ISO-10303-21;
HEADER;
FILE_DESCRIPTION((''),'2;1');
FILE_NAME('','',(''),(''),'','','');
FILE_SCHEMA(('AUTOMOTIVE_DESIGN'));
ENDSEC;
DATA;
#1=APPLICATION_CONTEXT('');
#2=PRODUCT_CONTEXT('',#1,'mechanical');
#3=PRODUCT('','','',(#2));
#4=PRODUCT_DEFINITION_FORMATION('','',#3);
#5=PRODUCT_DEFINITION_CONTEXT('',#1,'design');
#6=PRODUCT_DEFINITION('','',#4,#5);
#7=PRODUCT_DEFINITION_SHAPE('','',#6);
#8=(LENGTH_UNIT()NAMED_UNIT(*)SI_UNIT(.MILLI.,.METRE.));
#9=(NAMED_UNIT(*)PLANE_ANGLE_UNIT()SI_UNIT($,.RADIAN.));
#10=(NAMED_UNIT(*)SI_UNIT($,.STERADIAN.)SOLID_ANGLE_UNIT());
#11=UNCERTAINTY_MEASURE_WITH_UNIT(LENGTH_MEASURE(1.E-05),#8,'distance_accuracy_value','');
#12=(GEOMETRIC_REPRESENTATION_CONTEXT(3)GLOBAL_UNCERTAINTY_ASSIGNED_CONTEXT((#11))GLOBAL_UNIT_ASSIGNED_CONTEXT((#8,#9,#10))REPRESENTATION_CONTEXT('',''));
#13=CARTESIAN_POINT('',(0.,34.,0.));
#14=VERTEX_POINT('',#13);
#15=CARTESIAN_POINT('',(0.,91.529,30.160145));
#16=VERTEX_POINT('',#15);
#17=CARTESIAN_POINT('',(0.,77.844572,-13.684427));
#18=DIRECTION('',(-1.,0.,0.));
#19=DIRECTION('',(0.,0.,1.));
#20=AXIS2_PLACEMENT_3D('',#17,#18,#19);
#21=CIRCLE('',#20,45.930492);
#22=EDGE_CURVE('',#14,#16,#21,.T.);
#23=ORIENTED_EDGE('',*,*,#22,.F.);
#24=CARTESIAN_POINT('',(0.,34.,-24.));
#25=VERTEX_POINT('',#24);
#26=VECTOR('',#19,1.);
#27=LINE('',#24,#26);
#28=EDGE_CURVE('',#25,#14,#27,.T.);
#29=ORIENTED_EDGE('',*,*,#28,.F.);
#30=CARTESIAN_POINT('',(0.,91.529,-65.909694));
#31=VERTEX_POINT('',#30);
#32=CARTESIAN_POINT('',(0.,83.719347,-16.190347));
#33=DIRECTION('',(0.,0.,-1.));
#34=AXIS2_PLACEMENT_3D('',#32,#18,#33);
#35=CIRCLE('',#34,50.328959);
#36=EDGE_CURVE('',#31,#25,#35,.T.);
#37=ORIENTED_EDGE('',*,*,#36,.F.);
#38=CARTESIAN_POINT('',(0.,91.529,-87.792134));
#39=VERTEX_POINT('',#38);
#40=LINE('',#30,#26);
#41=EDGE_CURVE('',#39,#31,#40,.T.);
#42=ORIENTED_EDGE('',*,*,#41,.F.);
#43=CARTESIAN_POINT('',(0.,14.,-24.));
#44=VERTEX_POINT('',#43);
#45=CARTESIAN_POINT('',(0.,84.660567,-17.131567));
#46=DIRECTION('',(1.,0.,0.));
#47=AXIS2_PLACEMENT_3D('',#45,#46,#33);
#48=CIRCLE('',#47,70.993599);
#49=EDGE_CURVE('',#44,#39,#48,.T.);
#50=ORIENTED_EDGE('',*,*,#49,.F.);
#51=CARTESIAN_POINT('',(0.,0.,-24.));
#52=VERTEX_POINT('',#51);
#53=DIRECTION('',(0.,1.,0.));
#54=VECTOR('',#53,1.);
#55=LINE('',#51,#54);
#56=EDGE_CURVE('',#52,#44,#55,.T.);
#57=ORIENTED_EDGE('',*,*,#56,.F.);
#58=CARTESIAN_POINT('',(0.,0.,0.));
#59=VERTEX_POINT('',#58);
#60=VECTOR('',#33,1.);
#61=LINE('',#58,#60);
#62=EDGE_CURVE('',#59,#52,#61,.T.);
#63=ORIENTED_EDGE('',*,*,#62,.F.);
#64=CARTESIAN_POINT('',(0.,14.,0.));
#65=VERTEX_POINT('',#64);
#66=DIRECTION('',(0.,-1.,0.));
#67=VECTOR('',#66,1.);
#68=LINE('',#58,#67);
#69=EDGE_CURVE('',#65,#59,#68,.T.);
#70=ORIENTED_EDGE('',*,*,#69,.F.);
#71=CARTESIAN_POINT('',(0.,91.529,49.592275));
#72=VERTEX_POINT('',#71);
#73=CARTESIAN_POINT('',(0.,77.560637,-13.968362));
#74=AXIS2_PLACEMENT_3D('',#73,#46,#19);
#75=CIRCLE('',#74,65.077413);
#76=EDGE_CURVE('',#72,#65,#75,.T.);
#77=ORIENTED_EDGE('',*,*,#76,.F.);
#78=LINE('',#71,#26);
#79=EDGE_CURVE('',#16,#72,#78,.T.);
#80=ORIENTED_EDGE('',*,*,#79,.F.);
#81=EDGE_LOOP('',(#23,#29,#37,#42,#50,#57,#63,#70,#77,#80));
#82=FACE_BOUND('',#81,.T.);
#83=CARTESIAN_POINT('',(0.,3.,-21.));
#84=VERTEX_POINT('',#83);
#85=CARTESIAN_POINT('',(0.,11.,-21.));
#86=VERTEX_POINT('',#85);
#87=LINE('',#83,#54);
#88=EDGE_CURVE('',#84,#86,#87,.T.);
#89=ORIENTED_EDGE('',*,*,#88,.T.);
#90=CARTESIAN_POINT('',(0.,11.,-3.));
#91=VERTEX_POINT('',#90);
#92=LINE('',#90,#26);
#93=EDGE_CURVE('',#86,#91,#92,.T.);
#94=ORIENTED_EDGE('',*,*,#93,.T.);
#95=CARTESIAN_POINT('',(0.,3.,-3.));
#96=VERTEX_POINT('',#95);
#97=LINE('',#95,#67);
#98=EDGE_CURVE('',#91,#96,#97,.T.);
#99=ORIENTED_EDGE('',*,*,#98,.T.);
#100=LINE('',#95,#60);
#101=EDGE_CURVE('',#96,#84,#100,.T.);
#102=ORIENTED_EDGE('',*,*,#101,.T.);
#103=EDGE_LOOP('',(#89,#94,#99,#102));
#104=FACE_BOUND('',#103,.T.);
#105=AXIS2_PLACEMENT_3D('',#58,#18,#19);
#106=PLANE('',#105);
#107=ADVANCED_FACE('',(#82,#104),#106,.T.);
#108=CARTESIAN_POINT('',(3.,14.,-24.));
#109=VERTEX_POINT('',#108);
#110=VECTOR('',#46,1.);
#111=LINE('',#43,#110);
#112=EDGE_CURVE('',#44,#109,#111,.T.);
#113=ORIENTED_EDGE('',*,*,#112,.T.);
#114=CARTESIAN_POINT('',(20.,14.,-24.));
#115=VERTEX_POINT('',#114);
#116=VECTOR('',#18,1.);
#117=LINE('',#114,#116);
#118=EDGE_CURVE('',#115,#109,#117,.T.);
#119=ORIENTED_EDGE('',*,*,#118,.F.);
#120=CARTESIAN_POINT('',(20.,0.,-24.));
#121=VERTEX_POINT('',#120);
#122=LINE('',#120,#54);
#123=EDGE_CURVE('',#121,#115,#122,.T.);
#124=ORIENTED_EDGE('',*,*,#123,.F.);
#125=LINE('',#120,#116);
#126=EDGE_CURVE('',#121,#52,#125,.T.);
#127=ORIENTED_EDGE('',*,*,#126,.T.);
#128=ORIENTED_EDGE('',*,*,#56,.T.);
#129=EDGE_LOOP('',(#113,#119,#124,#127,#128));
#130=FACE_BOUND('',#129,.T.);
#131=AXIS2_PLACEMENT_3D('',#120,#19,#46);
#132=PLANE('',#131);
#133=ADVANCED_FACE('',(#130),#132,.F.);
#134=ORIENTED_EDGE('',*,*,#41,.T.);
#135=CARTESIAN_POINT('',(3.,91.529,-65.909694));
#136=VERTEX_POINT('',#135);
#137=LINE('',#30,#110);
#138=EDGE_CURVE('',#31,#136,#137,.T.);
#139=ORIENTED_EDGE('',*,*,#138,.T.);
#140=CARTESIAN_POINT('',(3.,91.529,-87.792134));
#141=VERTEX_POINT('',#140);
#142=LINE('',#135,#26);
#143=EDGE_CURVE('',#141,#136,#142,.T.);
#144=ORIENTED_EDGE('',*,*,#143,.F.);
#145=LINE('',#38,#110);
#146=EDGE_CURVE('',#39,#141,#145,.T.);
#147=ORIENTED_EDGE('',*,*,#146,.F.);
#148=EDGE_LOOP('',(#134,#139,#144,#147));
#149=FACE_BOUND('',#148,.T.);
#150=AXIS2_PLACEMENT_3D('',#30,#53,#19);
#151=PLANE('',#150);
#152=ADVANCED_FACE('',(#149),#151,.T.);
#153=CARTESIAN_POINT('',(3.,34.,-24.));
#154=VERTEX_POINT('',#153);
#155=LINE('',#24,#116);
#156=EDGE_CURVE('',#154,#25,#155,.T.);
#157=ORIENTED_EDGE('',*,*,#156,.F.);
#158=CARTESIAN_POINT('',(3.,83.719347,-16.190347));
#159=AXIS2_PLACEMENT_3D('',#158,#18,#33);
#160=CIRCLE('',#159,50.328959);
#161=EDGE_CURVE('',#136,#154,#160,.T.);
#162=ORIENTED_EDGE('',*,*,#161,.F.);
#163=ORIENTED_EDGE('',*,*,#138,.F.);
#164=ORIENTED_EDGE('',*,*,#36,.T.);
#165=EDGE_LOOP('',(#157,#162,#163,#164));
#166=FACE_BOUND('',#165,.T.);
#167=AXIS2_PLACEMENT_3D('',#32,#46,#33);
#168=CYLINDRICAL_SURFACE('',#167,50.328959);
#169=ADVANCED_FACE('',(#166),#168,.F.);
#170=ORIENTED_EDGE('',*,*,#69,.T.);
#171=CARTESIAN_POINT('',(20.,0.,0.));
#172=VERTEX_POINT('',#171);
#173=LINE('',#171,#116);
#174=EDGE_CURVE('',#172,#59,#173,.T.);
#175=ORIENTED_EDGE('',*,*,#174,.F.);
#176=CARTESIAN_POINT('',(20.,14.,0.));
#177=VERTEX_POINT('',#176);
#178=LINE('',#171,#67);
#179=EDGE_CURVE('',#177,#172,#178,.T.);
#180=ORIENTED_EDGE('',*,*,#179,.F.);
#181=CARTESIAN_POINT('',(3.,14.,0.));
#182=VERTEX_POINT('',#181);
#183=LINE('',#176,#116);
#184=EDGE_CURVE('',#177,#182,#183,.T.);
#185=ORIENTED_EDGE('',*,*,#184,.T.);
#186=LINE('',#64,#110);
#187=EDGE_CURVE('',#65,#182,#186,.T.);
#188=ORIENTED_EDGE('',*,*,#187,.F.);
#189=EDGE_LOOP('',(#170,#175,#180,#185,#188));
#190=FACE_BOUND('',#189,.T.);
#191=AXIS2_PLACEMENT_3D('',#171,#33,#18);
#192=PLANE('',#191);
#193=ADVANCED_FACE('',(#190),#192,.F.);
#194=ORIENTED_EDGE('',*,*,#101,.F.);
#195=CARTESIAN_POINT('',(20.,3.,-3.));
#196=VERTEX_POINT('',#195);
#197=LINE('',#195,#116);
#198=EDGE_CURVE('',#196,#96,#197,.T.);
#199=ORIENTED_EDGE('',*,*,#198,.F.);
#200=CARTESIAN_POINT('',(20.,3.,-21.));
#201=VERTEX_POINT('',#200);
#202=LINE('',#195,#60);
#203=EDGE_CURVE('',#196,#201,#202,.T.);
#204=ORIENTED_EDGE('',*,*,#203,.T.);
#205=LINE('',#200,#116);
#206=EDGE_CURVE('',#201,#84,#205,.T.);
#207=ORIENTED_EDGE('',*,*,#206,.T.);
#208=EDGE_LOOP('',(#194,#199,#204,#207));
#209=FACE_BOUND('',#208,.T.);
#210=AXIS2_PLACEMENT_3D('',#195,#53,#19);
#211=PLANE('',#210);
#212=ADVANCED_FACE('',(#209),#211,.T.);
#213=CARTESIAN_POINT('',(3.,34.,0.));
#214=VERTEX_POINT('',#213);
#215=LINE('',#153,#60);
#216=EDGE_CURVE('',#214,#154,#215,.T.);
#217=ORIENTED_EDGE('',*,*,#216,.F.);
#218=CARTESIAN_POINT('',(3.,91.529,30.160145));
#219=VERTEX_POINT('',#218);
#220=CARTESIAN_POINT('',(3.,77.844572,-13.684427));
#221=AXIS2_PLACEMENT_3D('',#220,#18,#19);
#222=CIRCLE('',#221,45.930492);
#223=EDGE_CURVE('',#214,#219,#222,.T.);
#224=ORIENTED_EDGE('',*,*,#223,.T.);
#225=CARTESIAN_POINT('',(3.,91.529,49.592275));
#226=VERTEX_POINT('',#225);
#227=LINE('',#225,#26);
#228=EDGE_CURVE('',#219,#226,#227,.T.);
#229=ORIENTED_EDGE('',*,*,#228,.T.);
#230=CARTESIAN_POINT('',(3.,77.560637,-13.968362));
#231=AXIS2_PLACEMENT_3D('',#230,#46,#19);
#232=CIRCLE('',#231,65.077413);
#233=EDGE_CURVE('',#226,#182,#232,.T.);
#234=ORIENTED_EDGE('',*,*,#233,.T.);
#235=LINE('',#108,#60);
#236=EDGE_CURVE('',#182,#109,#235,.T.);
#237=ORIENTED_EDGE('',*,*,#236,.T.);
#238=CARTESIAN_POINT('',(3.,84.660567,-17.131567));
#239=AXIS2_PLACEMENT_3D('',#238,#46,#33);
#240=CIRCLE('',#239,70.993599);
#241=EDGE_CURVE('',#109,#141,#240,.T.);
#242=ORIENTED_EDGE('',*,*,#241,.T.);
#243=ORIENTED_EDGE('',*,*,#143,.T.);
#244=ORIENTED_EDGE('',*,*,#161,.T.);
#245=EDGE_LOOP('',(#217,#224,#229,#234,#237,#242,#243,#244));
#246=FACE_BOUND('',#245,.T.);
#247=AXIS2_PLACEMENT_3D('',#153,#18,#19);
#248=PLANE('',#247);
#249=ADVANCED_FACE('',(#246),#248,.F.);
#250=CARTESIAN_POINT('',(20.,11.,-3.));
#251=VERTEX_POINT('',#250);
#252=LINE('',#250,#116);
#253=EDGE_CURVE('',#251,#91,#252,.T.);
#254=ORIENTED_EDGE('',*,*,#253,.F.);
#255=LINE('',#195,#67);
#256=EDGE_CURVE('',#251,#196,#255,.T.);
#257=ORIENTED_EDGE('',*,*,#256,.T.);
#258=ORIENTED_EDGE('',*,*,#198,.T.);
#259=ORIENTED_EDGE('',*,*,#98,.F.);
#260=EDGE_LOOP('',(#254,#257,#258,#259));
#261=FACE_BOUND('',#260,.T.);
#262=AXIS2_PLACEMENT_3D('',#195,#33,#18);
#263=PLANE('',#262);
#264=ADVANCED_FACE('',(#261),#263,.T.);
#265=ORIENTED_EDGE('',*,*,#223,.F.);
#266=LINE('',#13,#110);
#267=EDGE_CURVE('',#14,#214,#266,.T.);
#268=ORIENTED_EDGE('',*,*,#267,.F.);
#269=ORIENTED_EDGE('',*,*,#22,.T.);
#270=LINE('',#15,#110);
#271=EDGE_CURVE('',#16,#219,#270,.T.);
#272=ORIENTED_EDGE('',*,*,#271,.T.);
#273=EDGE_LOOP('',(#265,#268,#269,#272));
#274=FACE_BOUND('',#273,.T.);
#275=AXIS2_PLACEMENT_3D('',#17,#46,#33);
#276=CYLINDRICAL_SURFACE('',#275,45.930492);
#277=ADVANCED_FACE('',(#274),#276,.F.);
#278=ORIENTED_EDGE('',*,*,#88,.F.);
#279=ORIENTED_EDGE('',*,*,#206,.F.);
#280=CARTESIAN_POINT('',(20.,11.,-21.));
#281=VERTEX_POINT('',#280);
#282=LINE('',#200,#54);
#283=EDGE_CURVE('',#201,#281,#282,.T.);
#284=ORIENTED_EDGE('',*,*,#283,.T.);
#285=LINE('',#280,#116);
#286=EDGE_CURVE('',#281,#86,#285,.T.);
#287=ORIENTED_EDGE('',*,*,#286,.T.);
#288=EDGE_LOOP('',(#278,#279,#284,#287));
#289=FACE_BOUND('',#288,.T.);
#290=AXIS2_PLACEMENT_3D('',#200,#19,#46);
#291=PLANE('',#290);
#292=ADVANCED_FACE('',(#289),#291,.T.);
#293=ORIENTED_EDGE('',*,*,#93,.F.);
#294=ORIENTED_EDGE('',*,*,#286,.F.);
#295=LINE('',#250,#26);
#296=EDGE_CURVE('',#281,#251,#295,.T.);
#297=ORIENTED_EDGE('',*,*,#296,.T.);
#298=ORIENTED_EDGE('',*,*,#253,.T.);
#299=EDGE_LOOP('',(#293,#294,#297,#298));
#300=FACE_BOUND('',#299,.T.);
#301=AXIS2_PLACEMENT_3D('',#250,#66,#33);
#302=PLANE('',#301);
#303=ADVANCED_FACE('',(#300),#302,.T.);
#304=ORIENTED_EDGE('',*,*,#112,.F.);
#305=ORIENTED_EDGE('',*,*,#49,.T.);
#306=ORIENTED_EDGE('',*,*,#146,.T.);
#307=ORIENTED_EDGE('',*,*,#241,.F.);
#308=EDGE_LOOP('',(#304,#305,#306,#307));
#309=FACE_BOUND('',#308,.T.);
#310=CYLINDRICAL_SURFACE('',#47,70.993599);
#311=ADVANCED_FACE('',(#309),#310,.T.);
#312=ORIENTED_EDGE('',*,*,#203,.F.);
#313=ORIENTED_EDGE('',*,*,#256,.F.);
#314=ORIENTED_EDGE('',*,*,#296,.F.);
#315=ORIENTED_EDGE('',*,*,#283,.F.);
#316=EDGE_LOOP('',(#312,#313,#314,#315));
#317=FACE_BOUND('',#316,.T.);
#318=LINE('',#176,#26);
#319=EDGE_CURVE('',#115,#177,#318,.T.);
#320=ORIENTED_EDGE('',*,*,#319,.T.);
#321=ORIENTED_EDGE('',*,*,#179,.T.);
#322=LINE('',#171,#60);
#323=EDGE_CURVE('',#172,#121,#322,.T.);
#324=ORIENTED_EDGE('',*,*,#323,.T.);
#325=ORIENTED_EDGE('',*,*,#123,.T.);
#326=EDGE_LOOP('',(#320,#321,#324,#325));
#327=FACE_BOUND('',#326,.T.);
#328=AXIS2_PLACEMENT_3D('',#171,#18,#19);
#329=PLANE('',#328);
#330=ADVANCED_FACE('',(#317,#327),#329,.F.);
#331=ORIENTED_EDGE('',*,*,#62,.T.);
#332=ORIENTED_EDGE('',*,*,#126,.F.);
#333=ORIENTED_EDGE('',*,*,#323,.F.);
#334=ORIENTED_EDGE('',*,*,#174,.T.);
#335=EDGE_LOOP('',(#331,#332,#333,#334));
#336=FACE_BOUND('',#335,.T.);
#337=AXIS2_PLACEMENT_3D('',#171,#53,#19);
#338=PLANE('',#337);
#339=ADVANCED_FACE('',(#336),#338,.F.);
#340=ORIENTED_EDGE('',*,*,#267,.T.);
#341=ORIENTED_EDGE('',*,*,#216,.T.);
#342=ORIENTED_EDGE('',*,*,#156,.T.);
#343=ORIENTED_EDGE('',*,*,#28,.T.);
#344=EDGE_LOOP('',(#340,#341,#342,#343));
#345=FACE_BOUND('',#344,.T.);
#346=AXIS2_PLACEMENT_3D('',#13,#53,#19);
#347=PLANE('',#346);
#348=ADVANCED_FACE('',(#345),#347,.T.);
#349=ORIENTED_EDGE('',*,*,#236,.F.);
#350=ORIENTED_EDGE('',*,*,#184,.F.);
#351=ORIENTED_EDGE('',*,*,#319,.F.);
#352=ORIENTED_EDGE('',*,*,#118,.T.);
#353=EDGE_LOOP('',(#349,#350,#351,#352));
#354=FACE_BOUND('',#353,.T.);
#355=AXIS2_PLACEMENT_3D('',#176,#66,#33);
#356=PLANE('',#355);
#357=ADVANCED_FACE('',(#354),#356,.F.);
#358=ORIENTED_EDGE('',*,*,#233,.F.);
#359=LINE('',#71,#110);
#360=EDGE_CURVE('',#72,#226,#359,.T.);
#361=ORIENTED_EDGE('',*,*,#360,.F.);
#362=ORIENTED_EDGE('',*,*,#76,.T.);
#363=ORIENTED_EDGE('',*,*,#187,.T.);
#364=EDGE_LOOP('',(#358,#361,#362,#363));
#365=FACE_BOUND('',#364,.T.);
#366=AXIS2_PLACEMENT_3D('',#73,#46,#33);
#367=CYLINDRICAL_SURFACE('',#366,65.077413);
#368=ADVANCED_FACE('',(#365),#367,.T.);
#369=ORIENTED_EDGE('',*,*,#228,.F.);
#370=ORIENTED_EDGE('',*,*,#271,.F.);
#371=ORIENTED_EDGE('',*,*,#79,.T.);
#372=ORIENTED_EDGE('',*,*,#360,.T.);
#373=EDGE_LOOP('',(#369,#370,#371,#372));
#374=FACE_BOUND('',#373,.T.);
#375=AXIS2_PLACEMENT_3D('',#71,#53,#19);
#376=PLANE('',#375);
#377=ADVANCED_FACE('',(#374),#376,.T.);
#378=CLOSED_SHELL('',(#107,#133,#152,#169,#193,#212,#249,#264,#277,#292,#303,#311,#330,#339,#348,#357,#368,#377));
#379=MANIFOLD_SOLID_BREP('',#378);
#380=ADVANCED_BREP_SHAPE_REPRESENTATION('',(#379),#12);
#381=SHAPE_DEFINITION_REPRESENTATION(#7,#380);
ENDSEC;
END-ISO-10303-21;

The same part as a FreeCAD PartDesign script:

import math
import FreeCAD as App
import Part
import Sketcher

V = App.Vector
Q = App.Units.Quantity


def add_polygon(sketch, points):
    """Adds a closed chain of lines whose ends are joined by coincident constraints."""
    first, n = sketch.GeometryCount, len(points)
    for a, b in zip(points, points[1:] + points[:1]):
        sketch.addGeometry(Part.LineSegment(App.Vector(*a, 0), App.Vector(*b, 0)), False)
    for i in range(n):
        sketch.addConstraint(Sketcher.Constraint("Coincident", first + i, 2, first + (i + 1) % n, 1))

doc = App.newDocument("Part")
params = doc.addObject("Spreadsheet::Sheet", "Params")
for row, (alias, value) in enumerate([
    ("sketch1_width", "14 mm"),
    ("sketch1_width2", "8 mm"),
    ("sketch1_height", "24 mm"),
    ("sketch1_height2", "18 mm"),
    ("pad1_length", "20 mm"),
    ("sketch2_width", "3 mm"),
    ("sketch2_height", "24 mm"),
    ("pad2_length", "20 mm"),
    ("sketch3_width", "20 mm"),
    ("pad3_length", "3 mm"),
], start=1):
    params.set(f"A{row}", alias)
    params.set(f"B{row}", "=" + value)
    params.setAlias(f"B{row}", alias)

body = doc.addObject("PartDesign::Body", "Body")

# Sketch on YZ plane
sketch1 = body.newObject("Sketcher::SketchObject", "Sketch")
sketch1.AttachmentSupport = (doc.getObject("YZ_Plane"), [""])
sketch1.MapMode = "FlatFace"
add_polygon(sketch1, [(14, 0), (0, 0), (0, -24), (14, -24)])  # lines 0-3
add_polygon(sketch1, [(3, -21), (3, -3), (11, -3), (11, -21)])  # lines 4-7
sketch1.addConstraint(Sketcher.Constraint("Horizontal", 0))
sketch1.addConstraint(Sketcher.Constraint("Vertical", 1))
sketch1.addConstraint(Sketcher.Constraint("Horizontal", 2))
sketch1.addConstraint(Sketcher.Constraint("Vertical", 3))
sketch1.addConstraint(Sketcher.Constraint("Vertical", 4))
sketch1.addConstraint(Sketcher.Constraint("Horizontal", 5))
sketch1.addConstraint(Sketcher.Constraint("Vertical", 6))
sketch1.addConstraint(Sketcher.Constraint("Horizontal", 7))
sketch1.addConstraint(Sketcher.Constraint("Coincident", 0, 2, -1, 1))
sketch1.addConstraint(Sketcher.Constraint("DistanceX", 0, 2, 0, 1, Q("14 mm")))
sketch1.addConstraint(Sketcher.Constraint("DistanceX", 5, 1, 5, 2, Q("8 mm")))
sketch1.addConstraint(Sketcher.Constraint("DistanceY", 1, 2, 1, 1, Q("24 mm")))
sketch1.addConstraint(Sketcher.Constraint("DistanceY", 4, 1, 4, 2, Q("18 mm")))
sketch1.addConstraint(Sketcher.Constraint("DistanceX", -1, 1, 4, 2, Q("3 mm")))
sketch1.addConstraint(Sketcher.Constraint("DistanceY", 4, 2, -1, 1, Q("3 mm")))
sketch1.setExpression("Constraints[17]", "Params.sketch1_width")
sketch1.setExpression("Constraints[18]", "Params.sketch1_width2")
sketch1.setExpression("Constraints[19]", "Params.sketch1_height")
sketch1.setExpression("Constraints[20]", "Params.sketch1_height2")
pad1 = body.newObject("PartDesign::Pad", "Pad")
pad1.Profile = sketch1
pad1.setExpression("Length", "Params.pad1_length")

# Sketch on XZ plane
sketch2 = body.newObject("Sketcher::SketchObject", "Sketch001")
sketch2.AttachmentSupport = (doc.getObject("XZ_Plane"), [""])
sketch2.MapMode = "FlatFace"
sketch2.AttachmentOffset = App.Placement(V(0, 0, -14), App.Rotation())
add_polygon(sketch2, [(0, -24), (0, 0), (3, 0), (3, -24)])  # lines 0-3
sketch2.addConstraint(Sketcher.Constraint("Vertical", 0))
sketch2.addConstraint(Sketcher.Constraint("Horizontal", 1))
sketch2.addConstraint(Sketcher.Constraint("Vertical", 2))
sketch2.addConstraint(Sketcher.Constraint("Horizontal", 3))
sketch2.addConstraint(Sketcher.Constraint("Coincident", 0, 2, -1, 1))
sketch2.addConstraint(Sketcher.Constraint("DistanceX", 1, 1, 1, 2, Q("3 mm")))
sketch2.addConstraint(Sketcher.Constraint("DistanceY", 0, 1, 0, 2, Q("24 mm")))
sketch2.setExpression("Constraints[9]", "Params.sketch2_width")
sketch2.setExpression("Constraints[10]", "Params.sketch2_height")
pad2 = body.newObject("PartDesign::Pad", "Pad001")
pad2.Profile = sketch2
pad2.setExpression("Length", "Params.pad2_length")
pad2.Reversed = True

# Sketch on YZ plane
sketch3 = body.newObject("Sketcher::SketchObject", "Sketch002")
sketch3.AttachmentSupport = (doc.getObject("YZ_Plane"), [""])
sketch3.MapMode = "FlatFace"
sketch3.AttachmentOffset = App.Placement(V(0, 0, 3), App.Rotation())
sketch3.addGeometry(Part.LineSegment(V(92, 30, 0), V(92, 50, 0)), False)
sketch3.addGeometry(Part.ArcOfCircle(Part.Circle(V(78, -14, 0), V(0, 0, 1), 65), math.radians(78), math.radians(168)), False)
sketch3.addGeometry(Part.LineSegment(V(14, 0, 0), V(34, 0, 0)), False)
sketch3.addGeometry(Part.ArcOfCircle(Part.Circle(V(78, -14, 0), V(0, 0, 1), 46), math.radians(73), math.radians(163)), False)
sketch3.addGeometry(Part.LineSegment(V(92, -88, 0), V(92, -66, 0)), False)
sketch3.addGeometry(Part.ArcOfCircle(Part.Circle(V(84, -16, 0), V(0, 0, 1), 50), math.radians(-171), math.radians(-81)), False)
sketch3.addGeometry(Part.LineSegment(V(34, -24, 0), V(14, -24, 0)), False)
sketch3.addGeometry(Part.ArcOfCircle(Part.Circle(V(85, -17, 0), V(0, 0, 1), 71), math.radians(-174), math.radians(-84)), False)
sketch3.addConstraint(Sketcher.Constraint("Coincident", 0, 2, 1, 1))
sketch3.addConstraint(Sketcher.Constraint("Coincident", 1, 2, 2, 1))
sketch3.addConstraint(Sketcher.Constraint("Coincident", 2, 2, 3, 2))
sketch3.addConstraint(Sketcher.Constraint("Coincident", 3, 1, 0, 1))
sketch3.addConstraint(Sketcher.Constraint("Coincident", 4, 2, 5, 2))
sketch3.addConstraint(Sketcher.Constraint("Coincident", 5, 1, 6, 1))
sketch3.addConstraint(Sketcher.Constraint("Coincident", 6, 2, 7, 1))
sketch3.addConstraint(Sketcher.Constraint("Coincident", 7, 2, 4, 1))
sketch3.addConstraint(Sketcher.Constraint("Vertical", 0))
sketch3.addConstraint(Sketcher.Constraint("Horizontal", 2))
sketch3.addConstraint(Sketcher.Constraint("Vertical", 4))
sketch3.addConstraint(Sketcher.Constraint("Horizontal", 6))
sketch3.addConstraint(Sketcher.Constraint("PointOnObject", 1, 2, -1))
sketch3.addConstraint(Sketcher.Constraint("Vertical", 3, 1, 4, 2))
sketch3.addConstraint(Sketcher.Constraint("Vertical", 2, 2, 5, 1))
sketch3.addConstraint(Sketcher.Constraint("Vertical", 1, 2, 6, 2))
sketch3.addConstraint(Sketcher.Constraint("DistanceX", 2, 1, 2, 2, Q("20 mm")))
sketch3.addConstraint(Sketcher.Constraint("DistanceX", -1, 1, 1, 2, Q("14 mm")))
sketch3.addConstraint(Sketcher.Constraint("DistanceY", 5, 1, -1, 1, Q("24 mm")))
sketch3.addConstraint(Sketcher.Constraint("Radius", 7, Q("70.993599 mm")))
sketch3.addConstraint(Sketcher.Constraint("Radius", 3, Q("45.930492 mm")))
sketch3.addConstraint(Sketcher.Constraint("Radius", 5, Q("50.328959 mm")))
sketch3.addConstraint(Sketcher.Constraint("DistanceX", -1, 1, 0, 2, Q("91.529 mm")))
sketch3.addConstraint(Sketcher.Constraint("Radius", 1, Q("65.077413 mm")))
sketch3.addConstraint(Sketcher.Constraint("DistanceY", 0, 1, 0, 2, Q("19.43213 mm")))
sketch3.addConstraint(Sketcher.Constraint("DistanceY", 4, 1, 4, 2, Q("21.882441 mm")))
sketch3.addConstraint(Sketcher.Constraint("DistanceY", 3, 3, 0, 2, Q("63.276702 mm")))
sketch3.addConstraint(Sketcher.Constraint("DistanceY", 5, 3, 3, 3, Q("2.50592 mm")))
sketch3.setExpression("Constraints[16]", "Params.sketch3_width")
pad3 = body.newObject("PartDesign::Pad", "Pad002")
pad3.Profile = sketch3
pad3.setExpression("Length", "Params.pad3_length")
pad3.Reversed = True

doc.recompute()
